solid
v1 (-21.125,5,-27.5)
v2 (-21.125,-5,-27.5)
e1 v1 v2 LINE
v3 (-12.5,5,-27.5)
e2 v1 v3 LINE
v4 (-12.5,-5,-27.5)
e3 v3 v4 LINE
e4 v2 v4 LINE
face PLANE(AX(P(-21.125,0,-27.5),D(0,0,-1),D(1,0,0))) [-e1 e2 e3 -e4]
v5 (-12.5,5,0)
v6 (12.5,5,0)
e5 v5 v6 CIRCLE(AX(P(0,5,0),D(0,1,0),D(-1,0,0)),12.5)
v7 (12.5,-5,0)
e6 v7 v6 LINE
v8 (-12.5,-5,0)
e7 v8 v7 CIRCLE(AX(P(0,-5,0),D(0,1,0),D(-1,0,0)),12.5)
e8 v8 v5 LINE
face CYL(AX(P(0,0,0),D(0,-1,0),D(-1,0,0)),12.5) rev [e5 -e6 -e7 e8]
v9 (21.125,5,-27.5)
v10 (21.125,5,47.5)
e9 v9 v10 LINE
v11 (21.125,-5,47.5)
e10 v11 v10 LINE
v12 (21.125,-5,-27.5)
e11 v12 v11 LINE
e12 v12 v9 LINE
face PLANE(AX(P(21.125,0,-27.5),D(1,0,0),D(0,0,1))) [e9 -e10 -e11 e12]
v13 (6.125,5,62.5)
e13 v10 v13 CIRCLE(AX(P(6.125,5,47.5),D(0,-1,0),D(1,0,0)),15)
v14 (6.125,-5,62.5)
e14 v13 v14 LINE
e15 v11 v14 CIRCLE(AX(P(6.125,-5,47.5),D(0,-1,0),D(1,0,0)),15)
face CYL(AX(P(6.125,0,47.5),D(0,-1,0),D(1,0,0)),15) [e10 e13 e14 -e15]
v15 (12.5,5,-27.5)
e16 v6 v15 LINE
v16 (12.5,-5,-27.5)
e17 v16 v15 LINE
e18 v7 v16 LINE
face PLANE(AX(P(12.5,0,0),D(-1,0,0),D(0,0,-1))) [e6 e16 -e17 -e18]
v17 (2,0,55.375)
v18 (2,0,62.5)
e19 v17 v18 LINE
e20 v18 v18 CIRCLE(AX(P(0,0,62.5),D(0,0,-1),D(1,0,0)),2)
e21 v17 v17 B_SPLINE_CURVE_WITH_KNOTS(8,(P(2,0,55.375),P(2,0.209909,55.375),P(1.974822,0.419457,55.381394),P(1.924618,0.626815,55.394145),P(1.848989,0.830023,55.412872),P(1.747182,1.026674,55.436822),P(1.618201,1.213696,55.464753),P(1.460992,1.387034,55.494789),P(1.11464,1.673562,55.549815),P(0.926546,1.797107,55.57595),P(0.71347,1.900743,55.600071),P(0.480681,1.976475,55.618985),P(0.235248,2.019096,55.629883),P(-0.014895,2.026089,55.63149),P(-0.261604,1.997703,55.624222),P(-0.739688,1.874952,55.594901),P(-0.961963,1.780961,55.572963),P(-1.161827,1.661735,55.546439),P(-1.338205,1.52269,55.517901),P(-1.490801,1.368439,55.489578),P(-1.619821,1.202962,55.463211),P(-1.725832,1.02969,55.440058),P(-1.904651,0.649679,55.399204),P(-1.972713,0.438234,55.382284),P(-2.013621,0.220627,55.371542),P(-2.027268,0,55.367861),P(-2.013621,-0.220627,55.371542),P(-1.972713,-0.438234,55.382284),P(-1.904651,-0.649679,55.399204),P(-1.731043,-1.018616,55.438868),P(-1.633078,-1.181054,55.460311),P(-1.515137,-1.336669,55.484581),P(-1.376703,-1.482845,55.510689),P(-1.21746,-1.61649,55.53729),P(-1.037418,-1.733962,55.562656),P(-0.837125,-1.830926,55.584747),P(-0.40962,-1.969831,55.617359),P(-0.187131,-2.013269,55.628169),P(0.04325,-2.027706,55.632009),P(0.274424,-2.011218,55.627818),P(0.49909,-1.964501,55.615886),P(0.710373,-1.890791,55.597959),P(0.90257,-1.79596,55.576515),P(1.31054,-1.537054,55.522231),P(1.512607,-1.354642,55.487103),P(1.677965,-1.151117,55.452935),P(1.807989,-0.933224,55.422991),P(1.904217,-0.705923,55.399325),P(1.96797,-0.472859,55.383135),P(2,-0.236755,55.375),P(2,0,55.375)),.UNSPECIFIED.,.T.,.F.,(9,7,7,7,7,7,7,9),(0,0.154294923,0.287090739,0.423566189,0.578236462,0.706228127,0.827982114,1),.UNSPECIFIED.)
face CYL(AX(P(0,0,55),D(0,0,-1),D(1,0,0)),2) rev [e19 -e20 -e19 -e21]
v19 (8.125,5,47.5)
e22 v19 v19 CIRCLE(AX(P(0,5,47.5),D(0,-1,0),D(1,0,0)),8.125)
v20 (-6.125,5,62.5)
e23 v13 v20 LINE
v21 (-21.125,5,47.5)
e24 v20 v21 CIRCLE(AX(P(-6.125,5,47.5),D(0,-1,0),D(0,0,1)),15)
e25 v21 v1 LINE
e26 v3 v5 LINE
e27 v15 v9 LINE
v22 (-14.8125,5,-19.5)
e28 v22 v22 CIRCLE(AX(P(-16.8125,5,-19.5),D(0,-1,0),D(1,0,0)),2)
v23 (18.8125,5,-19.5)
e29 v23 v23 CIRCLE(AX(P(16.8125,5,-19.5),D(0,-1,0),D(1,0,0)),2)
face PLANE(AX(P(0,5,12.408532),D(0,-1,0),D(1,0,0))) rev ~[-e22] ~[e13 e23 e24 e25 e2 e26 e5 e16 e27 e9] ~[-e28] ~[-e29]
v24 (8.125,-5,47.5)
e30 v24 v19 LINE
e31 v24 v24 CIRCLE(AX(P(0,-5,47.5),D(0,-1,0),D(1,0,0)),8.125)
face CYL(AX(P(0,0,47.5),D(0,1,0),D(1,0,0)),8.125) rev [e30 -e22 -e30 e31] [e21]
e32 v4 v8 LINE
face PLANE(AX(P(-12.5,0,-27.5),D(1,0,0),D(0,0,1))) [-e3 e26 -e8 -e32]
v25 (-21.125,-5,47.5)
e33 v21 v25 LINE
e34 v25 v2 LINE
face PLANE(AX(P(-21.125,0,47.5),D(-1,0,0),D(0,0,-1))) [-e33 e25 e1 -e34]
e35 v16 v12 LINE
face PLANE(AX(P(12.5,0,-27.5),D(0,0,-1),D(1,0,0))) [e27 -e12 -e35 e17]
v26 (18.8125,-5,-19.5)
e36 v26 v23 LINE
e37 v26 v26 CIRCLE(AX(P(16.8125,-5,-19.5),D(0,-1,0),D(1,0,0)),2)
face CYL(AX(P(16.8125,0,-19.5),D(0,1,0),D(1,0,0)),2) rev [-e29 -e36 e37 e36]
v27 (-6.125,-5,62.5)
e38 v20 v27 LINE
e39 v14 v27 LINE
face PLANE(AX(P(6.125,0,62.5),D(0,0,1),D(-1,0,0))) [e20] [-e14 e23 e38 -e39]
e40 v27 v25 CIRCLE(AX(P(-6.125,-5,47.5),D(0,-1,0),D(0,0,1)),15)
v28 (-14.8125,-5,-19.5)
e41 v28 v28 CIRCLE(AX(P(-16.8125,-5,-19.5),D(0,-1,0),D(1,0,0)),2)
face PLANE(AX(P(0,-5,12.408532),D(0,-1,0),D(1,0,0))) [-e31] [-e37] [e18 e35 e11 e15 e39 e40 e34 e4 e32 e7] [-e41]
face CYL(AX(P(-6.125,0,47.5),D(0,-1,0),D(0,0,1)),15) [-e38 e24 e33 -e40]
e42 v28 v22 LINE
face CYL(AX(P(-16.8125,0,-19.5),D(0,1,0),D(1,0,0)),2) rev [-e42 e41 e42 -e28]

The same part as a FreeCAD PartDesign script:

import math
import FreeCAD as App
import Part
import Sketcher

doc = App.newDocument("Part")
body = doc.addObject("PartDesign::Body", "Body")

# Sketch on XZ plane
sketch1 = doc.addObject("Sketcher::SketchObject", "Sketch")
body.addObject(sketch1)
sketch1.AttachmentSupport = (doc.XZ_Plane, [""])
sketch1.MapMode = "FlatFace"
sketch1.addGeometry([
    Part.ArcOfCircle(Part.Circle(App.Vector(6.125, 47.5, 0), App.Vector(0, 0, 1), 15), math.radians(0), math.radians(90)),  # 0
    Part.LineSegment(App.Vector(6.125, 62.5, 0), App.Vector(-6.125, 62.5, 0)),  # 1
    Part.ArcOfCircle(Part.Circle(App.Vector(-6.125, 47.5, 0), App.Vector(0, 0, 1), 15), math.radians(90), math.radians(180)),  # 2
    Part.LineSegment(App.Vector(-21.125, 47.5, 0), App.Vector(-21.125, -27.5, 0)),  # 3
    Part.LineSegment(App.Vector(-21.125, -27.5, 0), App.Vector(-12.5, -27.5, 0)),  # 4
    Part.LineSegment(App.Vector(-12.5, -27.5, 0), App.Vector(-12.5, 0, 0)),  # 5
    Part.ArcOfCircle(Part.Circle(App.Vector(0, 0, 0), App.Vector(0, 0, 1), 12.5), math.radians(0), math.radians(180)),  # 6
    Part.LineSegment(App.Vector(12.5, 0, 0), App.Vector(12.5, -27.5, 0)),  # 7
    Part.LineSegment(App.Vector(12.5, -27.5, 0), App.Vector(21.125, -27.5, 0)),  # 8
    Part.LineSegment(App.Vector(21.125, -27.5, 0), App.Vector(21.125, 47.5, 0)),  # 9
    Part.Circle(App.Vector(-16.8125, -19.5, 0), App.Vector(0, 0, 1), 2),  # 10
    Part.Circle(App.Vector(16.8125, -19.5, 0), App.Vector(0, 0, 1), 2),  # 11
    Part.Circle(App.Vector(0, 47.5, 0), App.Vector(0, 0, 1), 8.125),  # 12
], False)
sketch1.addConstraint([
    Sketcher.Constraint("Tangent", 0, 2, 1, 1),
    Sketcher.Constraint("Tangent", 1, 2, 2, 1),
    Sketcher.Constraint("Tangent", 2, 2, 3, 1),
    Sketcher.Constraint("Coincident", 3, 2, 4, 1),
    Sketcher.Constraint("Coincident", 4, 2, 5, 1),
    Sketcher.Constraint("Tangent", 5, 2, 6, 2),
    Sketcher.Constraint("Tangent", 6, 1, 7, 1),
    Sketcher.Constraint("Coincident", 7, 2, 8, 1),
    Sketcher.Constraint("Coincident", 8, 2, 9, 1),
    Sketcher.Constraint("Tangent", 9, 2, 0, 1),
    Sketcher.Constraint("Horizontal", 1),
    Sketcher.Constraint("Vertical", 3),
    Sketcher.Constraint("Horizontal", 4),
    Sketcher.Constraint("Vertical", 5),
    Sketcher.Constraint("Vertical", 7),
    Sketcher.Constraint("Horizontal", 8),
    Sketcher.Constraint("Vertical", 9),
    Sketcher.Constraint("Coincident", 6, 3, -1, 1),
    Sketcher.Constraint("Equal", 0, 2),
    Sketcher.Constraint("Equal", 10, 11),
    Sketcher.Constraint("Symmetric", 10, 3, 11, 3, -2),
    Sketcher.Constraint("Symmetric", 3, 2, 8, 2, -2),
    Sketcher.Constraint("PointOnObject", 12, 3, -2),
    Sketcher.Constraint("Horizontal", 2, 3, 12, 3),
    Sketcher.Constraint("Diameter", 10, 4.0),
    Sketcher.Constraint("Radius", 0, 15.0),
    Sketcher.Constraint("Radius", 6, 12.5),
    Sketcher.Constraint("Diameter", 12, 16.25),
    Sketcher.Constraint("DistanceY", 3, 2, 3, 1, 75.0),
    Sketcher.Constraint("DistanceY", 5, 1, 5, 2, 27.5),
    Sketcher.Constraint("DistanceY", 10, 3, 2, 3, 67.0),
    Sketcher.Constraint("DistanceX", 1, 2, 1, 1, 12.25),
    Sketcher.Constraint("DistanceX", 10, 3, 11, 3, 33.625),
])
pad1 = doc.addObject("PartDesign::Pad", "Pad")
body.addObject(pad1)
pad1.Profile = sketch1
pad1.Length = 10
pad1.Midplane = True

# Sketch on XY plane
sketch2 = doc.addObject("Sketcher::SketchObject", "Sketch001")
body.addObject(sketch2)
sketch2.AttachmentSupport = (doc.XY_Plane, [""])
sketch2.MapMode = "FlatFace"
sketch2.AttachmentOffset = App.Placement(App.Vector(0, 0, 55), App.Rotation())
sketch2.addGeometry(Part.Circle(App.Vector(0, 0, 0), App.Vector(0, 0, 1), 2), False)
sketch2.addConstraint([
    Sketcher.Constraint("Coincident", 0, 3, -1, 1),
    Sketcher.Constraint("Diameter", 0, 4.0),
])
pocket1 = doc.addObject("PartDesign::Pocket", "Pocket")
body.addObject(pocket1)
pocket1.Profile = sketch2
pocket1.Length = 7.501
pocket1.Reversed = True

doc.recompute()
